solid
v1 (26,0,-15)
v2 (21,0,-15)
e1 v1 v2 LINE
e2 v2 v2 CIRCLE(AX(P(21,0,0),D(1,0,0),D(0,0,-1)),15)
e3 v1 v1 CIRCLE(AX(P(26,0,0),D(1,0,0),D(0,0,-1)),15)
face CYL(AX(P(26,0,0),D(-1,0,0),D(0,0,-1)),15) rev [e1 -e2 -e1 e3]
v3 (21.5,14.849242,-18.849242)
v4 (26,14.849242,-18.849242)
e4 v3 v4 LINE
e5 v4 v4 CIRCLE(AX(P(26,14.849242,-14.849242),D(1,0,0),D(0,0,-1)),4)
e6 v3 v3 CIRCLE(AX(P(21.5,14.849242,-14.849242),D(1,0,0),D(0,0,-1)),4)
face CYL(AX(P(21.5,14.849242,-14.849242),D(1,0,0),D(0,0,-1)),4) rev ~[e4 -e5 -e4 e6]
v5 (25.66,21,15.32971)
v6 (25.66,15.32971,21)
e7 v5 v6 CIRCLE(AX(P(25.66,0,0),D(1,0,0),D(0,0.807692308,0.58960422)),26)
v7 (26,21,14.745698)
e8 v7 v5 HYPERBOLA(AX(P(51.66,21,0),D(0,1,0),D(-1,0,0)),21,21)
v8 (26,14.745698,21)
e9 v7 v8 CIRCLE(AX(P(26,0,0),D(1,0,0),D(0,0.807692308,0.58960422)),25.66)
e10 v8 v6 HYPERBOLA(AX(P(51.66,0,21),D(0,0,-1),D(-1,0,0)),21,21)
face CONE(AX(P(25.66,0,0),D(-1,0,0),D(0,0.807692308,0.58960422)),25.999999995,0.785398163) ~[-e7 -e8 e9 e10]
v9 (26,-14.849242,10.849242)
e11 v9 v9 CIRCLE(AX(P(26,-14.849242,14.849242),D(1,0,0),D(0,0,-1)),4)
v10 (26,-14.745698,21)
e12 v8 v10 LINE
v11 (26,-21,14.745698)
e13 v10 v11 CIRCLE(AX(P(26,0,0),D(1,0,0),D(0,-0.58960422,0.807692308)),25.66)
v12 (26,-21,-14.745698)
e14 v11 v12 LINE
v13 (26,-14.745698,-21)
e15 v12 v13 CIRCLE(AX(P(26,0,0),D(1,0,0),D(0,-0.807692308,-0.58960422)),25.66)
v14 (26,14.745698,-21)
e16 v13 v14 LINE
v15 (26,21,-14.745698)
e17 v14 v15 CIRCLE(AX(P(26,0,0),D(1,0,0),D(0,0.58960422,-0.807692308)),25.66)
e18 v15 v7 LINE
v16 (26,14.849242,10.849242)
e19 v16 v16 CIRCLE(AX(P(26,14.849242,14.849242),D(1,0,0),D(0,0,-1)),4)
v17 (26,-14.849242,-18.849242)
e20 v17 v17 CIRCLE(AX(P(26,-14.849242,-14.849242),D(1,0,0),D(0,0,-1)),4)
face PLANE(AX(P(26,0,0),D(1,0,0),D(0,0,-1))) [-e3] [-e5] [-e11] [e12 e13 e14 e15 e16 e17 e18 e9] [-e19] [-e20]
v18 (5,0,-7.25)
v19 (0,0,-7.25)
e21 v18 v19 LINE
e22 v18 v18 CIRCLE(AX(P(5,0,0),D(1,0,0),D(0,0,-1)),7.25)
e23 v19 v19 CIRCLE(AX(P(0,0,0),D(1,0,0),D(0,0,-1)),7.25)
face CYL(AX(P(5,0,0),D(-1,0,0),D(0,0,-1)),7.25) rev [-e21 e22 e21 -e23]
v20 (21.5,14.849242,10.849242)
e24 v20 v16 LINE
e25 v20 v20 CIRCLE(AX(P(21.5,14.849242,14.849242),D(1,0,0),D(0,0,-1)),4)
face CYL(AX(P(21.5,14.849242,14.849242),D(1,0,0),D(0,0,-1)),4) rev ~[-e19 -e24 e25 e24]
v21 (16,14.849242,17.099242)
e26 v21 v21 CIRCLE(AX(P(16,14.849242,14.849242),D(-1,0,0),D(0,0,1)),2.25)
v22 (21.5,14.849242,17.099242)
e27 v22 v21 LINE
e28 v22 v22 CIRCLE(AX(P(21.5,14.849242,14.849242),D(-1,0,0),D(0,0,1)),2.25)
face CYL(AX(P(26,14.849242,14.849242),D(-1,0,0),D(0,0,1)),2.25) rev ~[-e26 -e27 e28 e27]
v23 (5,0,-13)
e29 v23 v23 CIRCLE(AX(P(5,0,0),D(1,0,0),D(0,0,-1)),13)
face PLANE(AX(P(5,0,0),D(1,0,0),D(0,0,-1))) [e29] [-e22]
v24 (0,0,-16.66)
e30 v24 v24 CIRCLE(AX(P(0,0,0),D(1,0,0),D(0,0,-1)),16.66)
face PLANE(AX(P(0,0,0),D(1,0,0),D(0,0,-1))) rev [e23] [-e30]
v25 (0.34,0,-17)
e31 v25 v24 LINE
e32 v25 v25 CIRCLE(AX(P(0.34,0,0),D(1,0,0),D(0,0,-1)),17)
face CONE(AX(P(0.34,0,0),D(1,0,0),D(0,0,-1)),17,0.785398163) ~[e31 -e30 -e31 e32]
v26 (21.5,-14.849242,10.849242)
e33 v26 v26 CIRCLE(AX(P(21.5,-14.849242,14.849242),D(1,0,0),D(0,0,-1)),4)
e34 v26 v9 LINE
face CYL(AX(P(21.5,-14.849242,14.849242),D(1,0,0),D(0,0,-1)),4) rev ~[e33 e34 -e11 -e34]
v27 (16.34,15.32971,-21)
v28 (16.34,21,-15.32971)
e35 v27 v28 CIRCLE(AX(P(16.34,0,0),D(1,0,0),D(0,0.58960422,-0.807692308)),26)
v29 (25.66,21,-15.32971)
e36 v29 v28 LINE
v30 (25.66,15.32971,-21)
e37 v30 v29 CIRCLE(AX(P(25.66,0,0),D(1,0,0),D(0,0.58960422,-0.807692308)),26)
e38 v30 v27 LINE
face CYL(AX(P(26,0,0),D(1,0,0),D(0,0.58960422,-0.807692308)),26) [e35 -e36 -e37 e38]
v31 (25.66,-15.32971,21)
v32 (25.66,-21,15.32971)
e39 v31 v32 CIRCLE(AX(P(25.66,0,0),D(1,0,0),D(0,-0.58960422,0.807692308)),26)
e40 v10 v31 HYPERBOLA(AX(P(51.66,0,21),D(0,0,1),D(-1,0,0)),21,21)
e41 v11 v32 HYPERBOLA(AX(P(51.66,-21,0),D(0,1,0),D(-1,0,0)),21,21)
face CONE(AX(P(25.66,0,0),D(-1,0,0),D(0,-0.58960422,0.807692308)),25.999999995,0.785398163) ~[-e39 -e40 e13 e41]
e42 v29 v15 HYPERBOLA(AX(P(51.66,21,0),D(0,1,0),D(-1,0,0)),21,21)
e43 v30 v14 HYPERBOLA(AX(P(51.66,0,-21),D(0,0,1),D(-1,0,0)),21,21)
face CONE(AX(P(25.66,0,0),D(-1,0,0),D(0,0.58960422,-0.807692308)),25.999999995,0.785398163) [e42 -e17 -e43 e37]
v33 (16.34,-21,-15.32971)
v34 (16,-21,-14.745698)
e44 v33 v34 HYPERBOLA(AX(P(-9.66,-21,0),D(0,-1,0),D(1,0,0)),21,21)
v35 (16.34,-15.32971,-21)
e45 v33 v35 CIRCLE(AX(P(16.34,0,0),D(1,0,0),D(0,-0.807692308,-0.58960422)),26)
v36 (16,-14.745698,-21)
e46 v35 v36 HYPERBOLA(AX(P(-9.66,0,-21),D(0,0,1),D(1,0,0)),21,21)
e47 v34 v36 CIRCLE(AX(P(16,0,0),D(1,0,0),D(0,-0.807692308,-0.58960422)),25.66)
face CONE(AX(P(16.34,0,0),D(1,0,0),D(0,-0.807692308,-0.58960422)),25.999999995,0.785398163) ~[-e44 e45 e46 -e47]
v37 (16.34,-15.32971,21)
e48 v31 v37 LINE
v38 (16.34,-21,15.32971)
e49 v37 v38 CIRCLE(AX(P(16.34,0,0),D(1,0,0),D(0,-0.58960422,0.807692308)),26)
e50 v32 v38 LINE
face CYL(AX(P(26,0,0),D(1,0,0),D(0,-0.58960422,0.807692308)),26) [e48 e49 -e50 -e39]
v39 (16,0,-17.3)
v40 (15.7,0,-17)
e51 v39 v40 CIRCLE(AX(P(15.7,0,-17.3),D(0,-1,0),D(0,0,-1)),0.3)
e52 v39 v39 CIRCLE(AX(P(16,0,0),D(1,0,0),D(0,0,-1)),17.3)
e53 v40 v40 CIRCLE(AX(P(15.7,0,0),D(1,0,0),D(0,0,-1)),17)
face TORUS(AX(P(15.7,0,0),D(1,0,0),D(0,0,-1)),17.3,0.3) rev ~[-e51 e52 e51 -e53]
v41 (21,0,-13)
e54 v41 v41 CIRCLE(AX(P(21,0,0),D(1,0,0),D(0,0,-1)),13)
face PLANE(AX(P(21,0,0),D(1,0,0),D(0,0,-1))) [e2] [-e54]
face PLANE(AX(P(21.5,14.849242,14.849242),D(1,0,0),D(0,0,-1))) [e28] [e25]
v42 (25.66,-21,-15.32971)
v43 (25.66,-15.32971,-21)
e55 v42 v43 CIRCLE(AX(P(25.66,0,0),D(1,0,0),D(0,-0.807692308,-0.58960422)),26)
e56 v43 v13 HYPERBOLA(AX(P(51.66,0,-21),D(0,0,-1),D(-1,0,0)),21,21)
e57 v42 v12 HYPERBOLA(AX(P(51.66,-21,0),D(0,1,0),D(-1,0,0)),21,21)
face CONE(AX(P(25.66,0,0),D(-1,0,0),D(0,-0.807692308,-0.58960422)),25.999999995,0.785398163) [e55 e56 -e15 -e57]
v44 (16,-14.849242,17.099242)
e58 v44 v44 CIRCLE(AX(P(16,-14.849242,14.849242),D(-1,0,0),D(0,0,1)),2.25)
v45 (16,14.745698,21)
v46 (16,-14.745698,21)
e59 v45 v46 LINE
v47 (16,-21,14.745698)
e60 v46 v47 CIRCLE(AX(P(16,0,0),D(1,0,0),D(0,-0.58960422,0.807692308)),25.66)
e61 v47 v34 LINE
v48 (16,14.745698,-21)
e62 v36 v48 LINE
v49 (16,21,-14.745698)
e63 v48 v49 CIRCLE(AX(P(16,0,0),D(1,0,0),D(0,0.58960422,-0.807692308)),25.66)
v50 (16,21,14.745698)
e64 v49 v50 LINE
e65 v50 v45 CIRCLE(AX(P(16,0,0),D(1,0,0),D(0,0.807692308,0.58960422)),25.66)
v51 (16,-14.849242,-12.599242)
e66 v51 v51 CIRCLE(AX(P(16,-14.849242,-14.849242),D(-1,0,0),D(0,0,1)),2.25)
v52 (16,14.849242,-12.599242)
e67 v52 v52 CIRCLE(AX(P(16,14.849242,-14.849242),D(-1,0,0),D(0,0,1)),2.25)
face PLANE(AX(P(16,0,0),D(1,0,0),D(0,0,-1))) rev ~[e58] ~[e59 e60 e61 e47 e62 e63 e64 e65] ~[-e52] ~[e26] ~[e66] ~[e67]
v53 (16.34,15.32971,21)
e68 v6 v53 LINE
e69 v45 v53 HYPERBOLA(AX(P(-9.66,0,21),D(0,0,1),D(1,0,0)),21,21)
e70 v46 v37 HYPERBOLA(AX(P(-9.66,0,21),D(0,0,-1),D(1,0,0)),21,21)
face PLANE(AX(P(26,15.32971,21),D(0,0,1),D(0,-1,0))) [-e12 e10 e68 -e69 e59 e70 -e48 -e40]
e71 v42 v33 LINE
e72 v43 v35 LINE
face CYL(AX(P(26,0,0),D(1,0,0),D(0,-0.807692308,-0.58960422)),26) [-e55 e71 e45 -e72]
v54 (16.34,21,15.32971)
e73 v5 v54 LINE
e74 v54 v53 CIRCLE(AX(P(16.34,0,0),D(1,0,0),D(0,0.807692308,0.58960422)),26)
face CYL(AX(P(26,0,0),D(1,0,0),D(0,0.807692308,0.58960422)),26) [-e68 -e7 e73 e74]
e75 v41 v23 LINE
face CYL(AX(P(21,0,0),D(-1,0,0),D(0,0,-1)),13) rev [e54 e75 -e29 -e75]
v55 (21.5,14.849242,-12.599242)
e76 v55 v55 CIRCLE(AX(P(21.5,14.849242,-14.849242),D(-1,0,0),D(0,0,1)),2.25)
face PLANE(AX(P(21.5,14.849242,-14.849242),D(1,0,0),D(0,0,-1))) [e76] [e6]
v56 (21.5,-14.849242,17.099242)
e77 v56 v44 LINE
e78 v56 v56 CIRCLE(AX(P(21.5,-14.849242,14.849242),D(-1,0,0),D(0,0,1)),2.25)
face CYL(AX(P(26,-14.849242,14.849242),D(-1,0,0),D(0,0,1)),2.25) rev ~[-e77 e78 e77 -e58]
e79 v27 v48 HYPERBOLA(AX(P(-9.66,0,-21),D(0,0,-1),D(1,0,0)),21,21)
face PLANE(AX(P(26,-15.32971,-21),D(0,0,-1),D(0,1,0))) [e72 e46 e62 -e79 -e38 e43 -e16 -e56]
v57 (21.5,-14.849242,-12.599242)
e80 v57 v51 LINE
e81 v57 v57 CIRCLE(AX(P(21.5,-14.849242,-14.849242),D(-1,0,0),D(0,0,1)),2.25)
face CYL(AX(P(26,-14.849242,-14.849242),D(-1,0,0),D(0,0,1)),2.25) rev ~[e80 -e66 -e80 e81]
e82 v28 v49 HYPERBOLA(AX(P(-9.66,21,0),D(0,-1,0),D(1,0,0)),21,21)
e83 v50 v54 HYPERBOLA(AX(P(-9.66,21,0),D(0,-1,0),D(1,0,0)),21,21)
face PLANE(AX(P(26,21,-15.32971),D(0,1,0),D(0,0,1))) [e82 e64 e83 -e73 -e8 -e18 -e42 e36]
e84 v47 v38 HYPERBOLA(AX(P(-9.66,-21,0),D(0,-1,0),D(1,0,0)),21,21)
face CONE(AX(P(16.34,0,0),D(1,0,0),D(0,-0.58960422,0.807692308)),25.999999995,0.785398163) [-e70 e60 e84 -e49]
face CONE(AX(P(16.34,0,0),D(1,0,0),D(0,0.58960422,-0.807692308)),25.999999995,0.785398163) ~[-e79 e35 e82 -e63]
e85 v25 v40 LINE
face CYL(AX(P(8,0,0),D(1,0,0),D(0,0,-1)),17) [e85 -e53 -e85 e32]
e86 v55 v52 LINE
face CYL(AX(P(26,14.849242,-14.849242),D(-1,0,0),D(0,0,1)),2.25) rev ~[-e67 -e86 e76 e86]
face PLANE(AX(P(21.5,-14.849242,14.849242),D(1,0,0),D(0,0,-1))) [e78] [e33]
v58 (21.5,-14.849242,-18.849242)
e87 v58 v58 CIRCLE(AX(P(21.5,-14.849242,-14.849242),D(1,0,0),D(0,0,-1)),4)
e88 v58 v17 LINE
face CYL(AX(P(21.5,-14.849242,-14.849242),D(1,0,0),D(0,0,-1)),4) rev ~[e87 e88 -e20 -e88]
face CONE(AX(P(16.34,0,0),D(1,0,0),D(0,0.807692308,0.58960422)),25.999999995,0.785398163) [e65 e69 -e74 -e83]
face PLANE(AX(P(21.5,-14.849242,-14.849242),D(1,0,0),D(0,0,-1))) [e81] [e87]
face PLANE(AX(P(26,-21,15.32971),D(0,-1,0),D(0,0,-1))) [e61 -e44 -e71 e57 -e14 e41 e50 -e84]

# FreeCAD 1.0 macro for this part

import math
import FreeCAD as App
import Part
import Sketcher

V = App.Vector


def edges_at(feature, points):
    """Names of the edges that pass closest to the given points."""
    edges = feature.Shape.Edges
    near = lambda p: min(range(len(edges)), key=lambda i: edges[i].distToShape(Part.Vertex(*p))[0])
    return sorted({f"Edge{near(p) + 1}" for p in points})

doc = App.newDocument("Part")
body = doc.addObject("PartDesign::Body", "Body")

sketch1 = doc.addObject("Sketcher::SketchObject", "Sketch")
body.addObject(sketch1)
sketch1.AttachmentSupport = (doc.YZ_Plane, [""])
sketch1.MapMode = "FlatFace"
sketch1.AttachmentOffset = App.Placement(V(0, 0, 26), App.Rotation())
sketch1.addGeometry(Part.LineSegment(V(-15, -21, 0), V(15, -21, 0)), False)
sketch1.addGeometry(Part.ArcOfCircle(Part.Circle(V(0, 0, 0), V(0, 0, 1), 26), math.radians(-53.87), math.radians(-36.13)), False)
sketch1.addGeometry(Part.LineSegment(V(21, -15, 0), V(21, 15, 0)), False)
sketch1.addGeometry(Part.ArcOfCircle(Part.Circle(V(0, 0, 0), V(0, 0, 1), 26), math.radians(36.13), math.radians(53.87)), False)
sketch1.addGeometry(Part.LineSegment(V(15, 21, 0), V(-15, 21, 0)), False)
sketch1.addGeometry(Part.ArcOfCircle(Part.Circle(V(0, 0, 0), V(0, 0, 1), 26), math.radians(126.13), math.radians(143.87)), False)
sketch1.addGeometry(Part.LineSegment(V(-21, 15, 0), V(-21, -15, 0)), False)
sketch1.addGeometry(Part.ArcOfCircle(Part.Circle(V(0, 0, 0), V(0, 0, 1), 26), math.radians(-143.87), math.radians(-126.13)), False)
sketch1.addConstraint(Sketcher.Constraint("Coincident", 0, 2, 1, 1))
sketch1.addConstraint(Sketcher.Constraint("Coincident", 1, 2, 2, 1))
sketch1.addConstraint(Sketcher.Constraint("Coincident", 2, 2, 3, 1))
sketch1.addConstraint(Sketcher.Constraint("Coincident", 3, 2, 4, 1))
sketch1.addConstraint(Sketcher.Constraint("Coincident", 4, 2, 5, 1))
sketch1.addConstraint(Sketcher.Constraint("Coincident", 5, 2, 6, 1))
sketch1.addConstraint(Sketcher.Constraint("Coincident", 6, 2, 7, 1))
sketch1.addConstraint(Sketcher.Constraint("Coincident", 7, 2, 0, 1))
sketch1.addConstraint(Sketcher.Constraint("Horizontal", 0))
sketch1.addConstraint(Sketcher.Constraint("Vertical", 2))
sketch1.addConstraint(Sketcher.Constraint("Horizontal", 4))
sketch1.addConstraint(Sketcher.Constraint("Vertical", 6))
sketch1.addConstraint(Sketcher.Constraint("Coincident", 1, 3, -1, 1))
sketch1.addConstraint(Sketcher.Constraint("Coincident", 3, 3, -1, 1))
sketch1.addConstraint(Sketcher.Constraint("Coincident", 5, 3, -1, 1))
sketch1.addConstraint(Sketcher.Constraint("Coincident", 7, 3, -1, 1))
sketch1.addConstraint(Sketcher.Constraint("Equal", 1, 3))
sketch1.addConstraint(Sketcher.Constraint("Equal", 3, 5))
sketch1.addConstraint(Sketcher.Constraint("Equal", 5, 7))
sketch1.addConstraint(Sketcher.Constraint("Horizontal", 2, 2, 5, 2))
sketch1.addConstraint(Sketcher.Constraint("Vertical", 0, 2, 3, 2))
sketch1.addConstraint(Sketcher.Constraint("Equal", 4, 2))
sketch1.addConstraint(Sketcher.Constraint("Radius", 1, 26.0))
sketch1.addConstraint(Sketcher.Constraint("DistanceY", 0, 2, -1, 1, 21.0))
pad1 = doc.addObject("PartDesign::Pad", "Pad")
body.addObject(pad1)
pad1.Profile = sketch1
pad1.Length = 10
pad1.Reversed = True

sketch2 = doc.addObject("Sketcher::SketchObject", "Sketch001")
body.addObject(sketch2)
sketch2.AttachmentSupport = (doc.XY_Plane, [""])
sketch2.MapMode = "FlatFace"
sketch2.addGeometry(Part.LineSegment(V(0, 17, 0), V(0, 0, 0)), False)
sketch2.addGeometry(Part.LineSegment(V(0, 0, 0), V(16, 0, 0)), False)
sketch2.addGeometry(Part.LineSegment(V(16, 0, 0), V(16, 17, 0)), False)
sketch2.addGeometry(Part.LineSegment(V(16, 17, 0), V(0, 17, 0)), False)
sketch2.addConstraint(Sketcher.Constraint("Coincident", 0, 2, 1, 1))
sketch2.addConstraint(Sketcher.Constraint("Coincident", 1, 2, 2, 1))
sketch2.addConstraint(Sketcher.Constraint("Coincident", 2, 2, 3, 1))
sketch2.addConstraint(Sketcher.Constraint("Coincident", 3, 2, 0, 1))
sketch2.addConstraint(Sketcher.Constraint("Vertical", 0))
sketch2.addConstraint(Sketcher.Constraint("Horizontal", 1))
sketch2.addConstraint(Sketcher.Constraint("Vertical", 2))
sketch2.addConstraint(Sketcher.Constraint("Horizontal", 3))
sketch2.addConstraint(Sketcher.Constraint("Coincident", 0, 2, -1, 1))
sketch2.addConstraint(Sketcher.Constraint("DistanceX", 1, 1, 1, 2, 16.0))
sketch2.addConstraint(Sketcher.Constraint("DistanceY", 0, 2, 0, 1, 17.0))
revolution = doc.addObject("PartDesign::Revolution", "Revolution")
body.addObject(revolution)
revolution.Profile = sketch2
revolution.ReferenceAxis = (sketch2, ["H_Axis"])
revolution.Angle = 360

sketch3 = doc.addObject("Sketcher::SketchObject", "Sketch002")
body.addObject(sketch3)
sketch3.AttachmentSupport = (doc.XY_Plane, [""])
sketch3.MapMode = "FlatFace"
sketch3.addGeometry(Part.LineSegment(V(0, 7.2, 0), V(0, 0, 0)), False)
sketch3.addGeometry(Part.LineSegment(V(0, 0, 0), V(26, 0, 0)), False)
sketch3.addGeometry(Part.LineSegment(V(26, 0, 0), V(26, 15, 0)), False)
sketch3.addGeometry(Part.LineSegment(V(26, 15, 0), V(21, 15, 0)), False)
sketch3.addGeometry(Part.LineSegment(V(21, 15, 0), V(21, 13, 0)), False)
sketch3.addGeometry(Part.LineSegment(V(21, 13, 0), V(5, 13, 0)), False)
sketch3.addGeometry(Part.LineSegment(V(5, 13, 0), V(5, 7.2, 0)), False)
sketch3.addGeometry(Part.LineSegment(V(5, 7.2, 0), V(0, 7.2, 0)), False)
sketch3.addConstraint(Sketcher.Constraint("Coincident", 0, 2, 1, 1))
sketch3.addConstraint(Sketcher.Constraint("Coincident", 1, 2, 2, 1))
sketch3.addConstraint(Sketcher.Constraint("Coincident", 2, 2, 3, 1))
sketch3.addConstraint(Sketcher.Constraint("Coincident", 3, 2, 4, 1))
sketch3.addConstraint(Sketcher.Constraint("Coincident", 4, 2, 5, 1))
sketch3.addConstraint(Sketcher.Constraint("Coincident", 5, 2, 6, 1))
sketch3.addConstraint(Sketcher.Constraint("Coincident", 6, 2, 7, 1))
sketch3.addConstraint(Sketcher.Constraint("Coincident", 7, 2, 0, 1))
sketch3.addConstraint(Sketcher.Constraint("Vertical", 0))
sketch3.addConstraint(Sketcher.Constraint("Horizontal", 1))
sketch3.addConstraint(Sketcher.Constraint("Vertical", 2))
sketch3.addConstraint(Sketcher.Constraint("Horizontal", 3))
sketch3.addConstraint(Sketcher.Constraint("Vertical", 4))
sketch3.addConstraint(Sketcher.Constraint("Horizontal", 5))
sketch3.addConstraint(Sketcher.Constraint("Vertical", 6))
sketch3.addConstraint(Sketcher.Constraint("Horizontal", 7))
sketch3.addConstraint(Sketcher.Constraint("Coincident", 0, 2, -1, 1))
sketch3.addConstraint(Sketcher.Constraint("Equal", 3, 7))
sketch3.addConstraint(Sketcher.Constraint("DistanceX", 1, 1, 1, 2, 26.0))
sketch3.addConstraint(Sketcher.Constraint("DistanceX", 3, 2, 3, 1, 5.0))
sketch3.addConstraint(Sketcher.Constraint("DistanceY", 2, 1, 2, 2, 15.0))
sketch3.addConstraint(Sketcher.Constraint("DistanceY", 4, 2, 4, 1, 2.0))
sketch3.addConstraint(Sketcher.Constraint("DistanceY", 0, 2, 0, 1, 7.25))
groove = doc.addObject("PartDesign::Groove", "Groove")
body.addObject(groove)
groove.Profile = sketch3
groove.ReferenceAxis = (sketch3, ["H_Axis"])
groove.Angle = 360

sketch4 = doc.addObject("Sketcher::SketchObject", "Sketch003")
body.addObject(sketch4)
sketch4.AttachmentSupport = (doc.YZ_Plane, [""])
sketch4.MapMode = "FlatFace"
sketch4.AttachmentOffset = App.Placement(V(0, 0, 26), App.Rotation())
sketch4.addGeometry(Part.Circle(V(14.8, 14.8, 0), V(0, 0, 1), 2.2), False)
sketch4.addGeometry(Part.Circle(V(-14.8, -14.8, 0), V(0, 0, 1), 2.2), False)
sketch4.addGeometry(Part.Circle(V(14.8, -14.8, 0), V(0, 0, 1), 2.2), False)
sketch4.addGeometry(Part.Circle(V(-14.8, 14.8, 0), V(0, 0, 1), 2.2), False)
sketch4.addConstraint(Sketcher.Constraint("Equal", 0, 1))
sketch4.addConstraint(Sketcher.Constraint("Equal", 1, 2))
sketch4.addConstraint(Sketcher.Constraint("Equal", 2, 3))
sketch4.addConstraint(Sketcher.Constraint("Symmetric", 0, 3, 1, 3, -1, 1))
sketch4.addConstraint(Sketcher.Constraint("Symmetric", 2, 3, 3, 3, -1, 1))
sketch4.addConstraint(Sketcher.Constraint("Symmetric", 1, 3, 2, 3, -2))
sketch4.addConstraint(Sketcher.Constraint("Diameter", 0, 4.5))
sketch4.addConstraint(Sketcher.Constraint("DistanceX", -1, 1, 0, 3, 14.849242))
sketch4.addConstraint(Sketcher.Constraint("DistanceY", -1, 1, 0, 3, 14.849242))
doc.recompute()
hole = doc.addObject("PartDesign::Hole", "Hole")
body.addObject(hole)
hole.Profile = sketch4
hole.ThreadType = "None"
hole.Diameter = 4.5
hole.DepthType = "Dimension"
hole.Depth = 26
hole.DrillPoint = "Flat"
hole.HoleCutType = "Counterbore"
hole.HoleCutDiameter = 8
hole.HoleCutDepth = 4.5
doc.recompute()

chamfer = doc.addObject("PartDesign::Chamfer", "Chamfer")
body.addObject(chamfer)
chamfer.Base = (hole, edges_at(hole, [
    (16, 18.385, -18.385),
    (26, -18.385, -18.385),
    (16, 18.385, 18.385),
    (16, -18.385, 18.385),
    (0, 0, 17),
    (16, -18.385, -18.385),
    (26, -18.385, 18.385),
    (26, 18.385, 18.385),
    (26, 18.385, -18.385),
]))
chamfer.Size = 0.34
doc.recompute()

fillet = doc.addObject("PartDesign::Fillet", "Fillet")
body.addObject(fillet)
fillet.Base = (chamfer, edges_at(chamfer, [(16, 0, 17)]))
fillet.Radius = 0.3

doc.recompute()
